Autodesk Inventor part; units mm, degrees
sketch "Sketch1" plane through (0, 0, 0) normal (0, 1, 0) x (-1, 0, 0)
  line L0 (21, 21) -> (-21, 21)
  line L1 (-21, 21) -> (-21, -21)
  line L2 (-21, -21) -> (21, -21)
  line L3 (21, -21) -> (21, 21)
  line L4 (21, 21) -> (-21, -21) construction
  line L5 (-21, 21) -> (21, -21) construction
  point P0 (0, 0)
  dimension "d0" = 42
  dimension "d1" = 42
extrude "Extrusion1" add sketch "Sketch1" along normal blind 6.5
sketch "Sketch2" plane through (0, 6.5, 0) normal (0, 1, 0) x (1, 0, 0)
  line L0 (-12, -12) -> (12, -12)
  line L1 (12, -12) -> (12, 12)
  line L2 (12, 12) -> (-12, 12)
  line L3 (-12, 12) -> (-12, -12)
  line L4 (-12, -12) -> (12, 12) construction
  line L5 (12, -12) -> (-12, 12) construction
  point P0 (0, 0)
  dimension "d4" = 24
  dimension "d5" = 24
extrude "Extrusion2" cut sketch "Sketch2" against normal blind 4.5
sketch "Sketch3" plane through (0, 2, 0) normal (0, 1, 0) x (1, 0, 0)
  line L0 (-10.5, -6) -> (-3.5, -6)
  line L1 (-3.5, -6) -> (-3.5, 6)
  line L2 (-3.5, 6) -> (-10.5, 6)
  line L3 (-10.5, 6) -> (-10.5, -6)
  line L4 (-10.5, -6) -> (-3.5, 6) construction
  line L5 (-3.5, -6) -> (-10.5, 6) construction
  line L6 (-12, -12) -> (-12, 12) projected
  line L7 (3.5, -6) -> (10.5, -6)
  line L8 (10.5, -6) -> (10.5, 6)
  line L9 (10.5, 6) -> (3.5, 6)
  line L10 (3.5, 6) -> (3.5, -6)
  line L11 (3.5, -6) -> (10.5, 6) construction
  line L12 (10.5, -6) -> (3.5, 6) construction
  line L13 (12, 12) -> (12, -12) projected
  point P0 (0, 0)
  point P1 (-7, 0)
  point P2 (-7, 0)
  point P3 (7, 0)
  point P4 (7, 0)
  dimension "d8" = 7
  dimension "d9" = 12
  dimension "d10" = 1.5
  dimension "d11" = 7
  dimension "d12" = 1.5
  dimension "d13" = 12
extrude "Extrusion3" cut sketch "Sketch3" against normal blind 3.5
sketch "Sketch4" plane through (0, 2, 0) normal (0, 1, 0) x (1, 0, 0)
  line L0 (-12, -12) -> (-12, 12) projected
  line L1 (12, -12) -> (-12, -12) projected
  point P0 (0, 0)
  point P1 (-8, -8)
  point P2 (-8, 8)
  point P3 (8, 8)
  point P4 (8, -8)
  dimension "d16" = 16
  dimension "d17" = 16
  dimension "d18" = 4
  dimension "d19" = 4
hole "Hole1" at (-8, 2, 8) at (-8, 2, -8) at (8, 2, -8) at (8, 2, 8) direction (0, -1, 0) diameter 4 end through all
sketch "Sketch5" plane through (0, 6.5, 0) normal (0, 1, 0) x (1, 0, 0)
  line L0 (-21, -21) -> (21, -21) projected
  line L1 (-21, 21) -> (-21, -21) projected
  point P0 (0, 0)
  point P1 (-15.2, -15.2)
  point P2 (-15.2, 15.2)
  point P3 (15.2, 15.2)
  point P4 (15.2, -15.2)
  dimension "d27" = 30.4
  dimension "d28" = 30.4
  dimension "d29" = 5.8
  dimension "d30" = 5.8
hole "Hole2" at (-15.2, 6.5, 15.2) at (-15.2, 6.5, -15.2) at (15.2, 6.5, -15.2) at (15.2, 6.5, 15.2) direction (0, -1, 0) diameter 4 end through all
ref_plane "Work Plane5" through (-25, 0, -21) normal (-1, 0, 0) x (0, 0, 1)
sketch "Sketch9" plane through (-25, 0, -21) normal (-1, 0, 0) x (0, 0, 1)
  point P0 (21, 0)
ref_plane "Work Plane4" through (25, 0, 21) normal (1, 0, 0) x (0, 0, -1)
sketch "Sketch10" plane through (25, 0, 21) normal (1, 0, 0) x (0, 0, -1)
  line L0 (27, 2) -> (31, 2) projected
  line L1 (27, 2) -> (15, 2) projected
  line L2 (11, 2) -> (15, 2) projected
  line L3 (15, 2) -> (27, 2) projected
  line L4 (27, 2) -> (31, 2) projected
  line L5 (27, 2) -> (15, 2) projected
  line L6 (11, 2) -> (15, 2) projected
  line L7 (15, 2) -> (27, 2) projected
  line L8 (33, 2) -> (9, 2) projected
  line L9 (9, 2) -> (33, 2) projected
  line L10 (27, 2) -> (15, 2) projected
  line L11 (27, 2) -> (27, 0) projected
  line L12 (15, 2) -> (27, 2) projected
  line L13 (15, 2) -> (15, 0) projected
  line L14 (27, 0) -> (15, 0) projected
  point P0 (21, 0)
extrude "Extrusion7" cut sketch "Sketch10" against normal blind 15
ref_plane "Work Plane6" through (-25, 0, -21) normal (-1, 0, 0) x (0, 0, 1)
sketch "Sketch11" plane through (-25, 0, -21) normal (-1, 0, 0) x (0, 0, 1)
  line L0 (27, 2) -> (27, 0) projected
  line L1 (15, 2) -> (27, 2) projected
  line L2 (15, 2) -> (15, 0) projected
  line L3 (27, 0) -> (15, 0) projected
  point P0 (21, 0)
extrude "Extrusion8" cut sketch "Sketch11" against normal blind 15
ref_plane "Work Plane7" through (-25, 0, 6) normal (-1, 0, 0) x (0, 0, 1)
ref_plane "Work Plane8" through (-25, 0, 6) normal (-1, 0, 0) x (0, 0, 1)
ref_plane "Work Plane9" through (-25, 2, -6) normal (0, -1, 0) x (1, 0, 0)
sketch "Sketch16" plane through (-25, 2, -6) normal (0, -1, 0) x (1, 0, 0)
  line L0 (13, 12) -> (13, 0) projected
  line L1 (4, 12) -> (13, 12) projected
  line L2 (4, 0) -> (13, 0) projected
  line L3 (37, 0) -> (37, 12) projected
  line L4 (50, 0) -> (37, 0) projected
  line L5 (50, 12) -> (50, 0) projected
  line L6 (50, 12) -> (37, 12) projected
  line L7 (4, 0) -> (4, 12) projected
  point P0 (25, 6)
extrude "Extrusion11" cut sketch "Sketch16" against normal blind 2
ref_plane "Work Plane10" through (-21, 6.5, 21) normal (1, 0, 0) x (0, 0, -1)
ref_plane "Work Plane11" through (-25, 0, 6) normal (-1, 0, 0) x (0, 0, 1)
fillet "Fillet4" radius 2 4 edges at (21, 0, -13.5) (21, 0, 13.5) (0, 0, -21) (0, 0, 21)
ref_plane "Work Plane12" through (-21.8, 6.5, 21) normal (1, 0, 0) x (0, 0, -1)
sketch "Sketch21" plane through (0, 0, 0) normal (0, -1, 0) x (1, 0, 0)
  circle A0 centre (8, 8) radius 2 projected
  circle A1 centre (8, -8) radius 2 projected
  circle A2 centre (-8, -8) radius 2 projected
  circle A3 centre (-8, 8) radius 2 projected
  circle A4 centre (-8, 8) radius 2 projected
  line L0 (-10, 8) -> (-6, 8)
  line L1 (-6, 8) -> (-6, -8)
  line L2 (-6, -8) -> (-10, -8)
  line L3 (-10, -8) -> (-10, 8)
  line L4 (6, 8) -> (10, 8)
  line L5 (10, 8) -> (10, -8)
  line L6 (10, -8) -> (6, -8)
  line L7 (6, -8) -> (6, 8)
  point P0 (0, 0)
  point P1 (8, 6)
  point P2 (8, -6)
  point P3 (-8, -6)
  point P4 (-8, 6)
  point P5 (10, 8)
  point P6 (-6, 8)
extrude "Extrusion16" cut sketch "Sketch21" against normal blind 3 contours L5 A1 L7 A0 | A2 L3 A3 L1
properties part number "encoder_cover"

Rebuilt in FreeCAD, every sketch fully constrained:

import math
import FreeCAD as App
import Part
import Sketcher
from FreeCAD import Vector
Q = App.Units.Quantity


def edges_at(feature, points):
    """Names of the edges that pass closest to the given points."""
    edges = feature.Shape.Edges
    near = lambda p: min(range(len(edges)), key=lambda i: edges[i].distToShape(Part.Vertex(*p))[0])
    return sorted({f"Edge{near(p) + 1}" for p in points})

doc = App.newDocument("Part")
params = doc.addObject("Spreadsheet::Sheet", "Params")
for row, (alias, value) in enumerate([
    ("sketch1_width", "42 mm"),
    ("pad1_length", "6.5 mm"),
    ("sketch2_width", "24 mm"),
    ("pocket1_length", "4.5 mm"),
    ("sketch3_width", "7 mm"),
    ("sketch3_height", "12 mm"),
    ("pocket2_length", "3.5 mm"),
    ("sketch4_diameter", "4 mm"),
    ("hole_diameter", "4 mm"),
    ("sketch5_diameter", "4 mm"),
    ("hole2_diameter", "4 mm"),
    ("sketch6_width", "2 mm"),
    ("sketch6_height", "12 mm"),
    ("pocket3_length", "15 mm"),
    ("sketch7_width", "2 mm"),
    ("sketch7_height", "12 mm"),
    ("pocket4_length", "15 mm"),
    ("sketch8_width", "9 mm"),
    ("sketch8_width2", "13 mm"),
    ("sketch8_height", "12 mm"),
    ("pocket5_length", "2 mm"),
    ("fillet_radius", "2 mm"),
    ("sketch9_radius", "2 mm"),
    ("sketch9_height", "16 mm"),
    ("pocket6_length", "3 mm"),
], start=1):
    params.set(f"A{row}", alias)
    params.set(f"B{row}", "=" + value)
    params.setAlias(f"B{row}", alias)

body = doc.addObject("PartDesign::Body", "Body")

sketch1 = doc.addObject("Sketcher::SketchObject", "Sketch")
body.addObject(sketch1)
sketch1.AttachmentSupport = (doc.XZ_Plane, [""])
sketch1.MapMode = "FlatFace"
sketch1.addGeometry(Part.LineSegment(Vector(-21, -21, 0), Vector(-21, 21, 0)), False)
sketch1.addGeometry(Part.LineSegment(Vector(-21, 21, 0), Vector(21, 21, 0)), False)
sketch1.addGeometry(Part.LineSegment(Vector(21, 21, 0), Vector(21, -21, 0)), False)
sketch1.addGeometry(Part.LineSegment(Vector(21, -21, 0), Vector(-21, -21, 0)), False)
sketch1.addConstraint(Sketcher.Constraint("Coincident", 0, 2, 1, 1))
sketch1.addConstraint(Sketcher.Constraint("Coincident", 1, 2, 2, 1))
sketch1.addConstraint(Sketcher.Constraint("Coincident", 2, 2, 3, 1))
sketch1.addConstraint(Sketcher.Constraint("Coincident", 3, 2, 0, 1))
sketch1.addConstraint(Sketcher.Constraint("Vertical", 0))
sketch1.addConstraint(Sketcher.Constraint("Horizontal", 1))
sketch1.addConstraint(Sketcher.Constraint("Vertical", 2))
sketch1.addConstraint(Sketcher.Constraint("Horizontal", 3))
sketch1.addConstraint(Sketcher.Constraint("Symmetric", 0, 2, 2, 2, -1, 1))
sketch1.addConstraint(Sketcher.Constraint("Equal", 3, 0))
sketch1.addConstraint(Sketcher.Constraint("DistanceX", 1, 1, 1, 2, Q("42 mm")))
sketch1.setExpression("Constraints[10]", "Params.sketch1_width")
pad1 = doc.addObject("PartDesign::Pad", "Pad")
body.addObject(pad1)
pad1.Profile = sketch1
pad1.setExpression("Length", "Params.pad1_length")
pad1.Reversed = True

sketch2 = doc.addObject("Sketcher::SketchObject", "Sketch001")
body.addObject(sketch2)
sketch2.AttachmentSupport = (doc.XZ_Plane, [""])
sketch2.MapMode = "FlatFace"
sketch2.AttachmentOffset = App.Placement(Vector(0, 0, -6.5), App.Rotation())
sketch2.addGeometry(Part.LineSegment(Vector(-12, -12, 0), Vector(-12, 12, 0)), False)
sketch2.addGeometry(Part.LineSegment(Vector(-12, 12, 0), Vector(12, 12, 0)), False)
sketch2.addGeometry(Part.LineSegment(Vector(12, 12, 0), Vector(12, -12, 0)), False)
sketch2.addGeometry(Part.LineSegment(Vector(12, -12, 0), Vector(-12, -12, 0)), False)
sketch2.addConstraint(Sketcher.Constraint("Coincident", 0, 2, 1, 1))
sketch2.addConstraint(Sketcher.Constraint("Coincident", 1, 2, 2, 1))
sketch2.addConstraint(Sketcher.Constraint("Coincident", 2, 2, 3, 1))
sketch2.addConstraint(Sketcher.Constraint("Coincident", 3, 2, 0, 1))
sketch2.addConstraint(Sketcher.Constraint("Vertical", 0))
sketch2.addConstraint(Sketcher.Constraint("Horizontal", 1))
sketch2.addConstraint(Sketcher.Constraint("Vertical", 2))
sketch2.addConstraint(Sketcher.Constraint("Horizontal", 3))
sketch2.addConstraint(Sketcher.Constraint("Symmetric", 0, 2, 2, 2, -1, 1))
sketch2.addConstraint(Sketcher.Constraint("Equal", 3, 0))
sketch2.addConstraint(Sketcher.Constraint("DistanceX", 1, 1, 1, 2, Q("24 mm")))
sketch2.setExpression("Constraints[10]", "Params.sketch2_width")
pocket1 = doc.addObject("PartDesign::Pocket", "Pocket")
body.addObject(pocket1)
pocket1.Profile = sketch2
pocket1.setExpression("Length", "Params.pocket1_length")
pocket1.Reversed = True

sketch3 = doc.addObject("Sketcher::SketchObject", "Sketch002")
body.addObject(sketch3)
sketch3.AttachmentSupport = (doc.XZ_Plane, [""])
sketch3.MapMode = "FlatFace"
sketch3.AttachmentOffset = App.Placement(Vector(0, 0, -2), App.Rotation())
sketch3.addGeometry(Part.LineSegment(Vector(-10, -6, 0), Vector(-10, 6, 0)), False)
sketch3.addGeometry(Part.LineSegment(Vector(-10, 6, 0), Vector(-4, 6, 0)), False)
sketch3.addGeometry(Part.LineSegment(Vector(-4, 6, 0), Vector(-4, -6, 0)), False)
sketch3.addGeometry(Part.LineSegment(Vector(-4, -6, 0), Vector(-10, -6, 0)), False)
sketch3.addGeometry(Part.LineSegment(Vector(4, -6, 0), Vector(4, 6, 0)), False)
sketch3.addGeometry(Part.LineSegment(Vector(4, 6, 0), Vector(10, 6, 0)), False)
sketch3.addGeometry(Part.LineSegment(Vector(10, 6, 0), Vector(10, -6, 0)), False)
sketch3.addGeometry(Part.LineSegment(Vector(10, -6, 0), Vector(4, -6, 0)), False)
sketch3.addConstraint(Sketcher.Constraint("Coincident", 0, 2, 1, 1))
sketch3.addConstraint(Sketcher.Constraint("Coincident", 1, 2, 2, 1))
sketch3.addConstraint(Sketcher.Constraint("Coincident", 2, 2, 3, 1))
sketch3.addConstraint(Sketcher.Constraint("Coincident", 3, 2, 0, 1))
sketch3.addConstraint(Sketcher.Constraint("Coincident", 4, 2, 5, 1))
sketch3.addConstraint(Sketcher.Constraint("Coincident", 5, 2, 6, 1))
sketch3.addConstraint(Sketcher.Constraint("Coincident", 6, 2, 7, 1))
sketch3.addConstraint(Sketcher.Constraint("Coincident", 7, 2, 4, 1))
sketch3.addConstraint(Sketcher.Constraint("Vertical", 0))
sketch3.addConstraint(Sketcher.Constraint("Horizontal", 1))
sketch3.addConstraint(Sketcher.Constraint("Vertical", 2))
sketch3.addConstraint(Sketcher.Constraint("Horizontal", 3))
sketch3.addConstraint(Sketcher.Constraint("Vertical", 4))
sketch3.addConstraint(Sketcher.Constraint("Horizontal", 5))
sketch3.addConstraint(Sketcher.Constraint("Vertical", 6))
sketch3.addConstraint(Sketcher.Constraint("Horizontal", 7))
sketch3.addConstraint(Sketcher.Constraint("Symmetric", 2, 2, 4, 2, -1, 1))
sketch3.addConstraint(Sketcher.Constraint("Symmetric", 0, 2, 6, 2, -1, 1))
sketch3.addConstraint(Sketcher.Constraint("Horizontal", 1, 2, 4, 2))
sketch3.addConstraint(Sketcher.Constraint("DistanceX", 1, 1, 1, 2, Q("7 mm")))
sketch3.addConstraint(Sketcher.Constraint("DistanceY", 0, 1, 0, 2, Q("12 mm")))
sketch3.addConstraint(Sketcher.Constraint("DistanceX", 1, 2, 4, 2, Q("7 mm")))
sketch3.setExpression("Constraints[19]", "Params.sketch3_width")
sketch3.setExpression("Constraints[20]", "Params.sketch3_height")
pocket2 = doc.addObject("PartDesign::Pocket", "Pocket001")
body.addObject(pocket2)
pocket2.Profile = sketch3
pocket2.setExpression("Length", "Params.pocket2_length")
pocket2.Reversed = True

sketch4 = doc.addObject("Sketcher::SketchObject", "Sketch003")
body.addObject(sketch4)
sketch4.AttachmentSupport = (doc.XZ_Plane, [""])
sketch4.MapMode = "FlatFace"
sketch4.AttachmentOffset = App.Placement(Vector(0, 0, -2), App.Rotation())
sketch4.addGeometry(Part.Circle(Vector(-8, 8, 0), Vector(0, 0, 1), 2), False)
sketch4.addGeometry(Part.Circle(Vector(-8, -8, 0), Vector(0, 0, 1), 2), False)
sketch4.addGeometry(Part.Circle(Vector(8, -8, 0), Vector(0, 0, 1), 2), False)
sketch4.addGeometry(Part.Circle(Vector(8, 8, 0), Vector(0, 0, 1), 2), False)
sketch4.addConstraint(Sketcher.Constraint("Equal", 0, 1))
sketch4.addConstraint(Sketcher.Constraint("Equal", 1, 2))
sketch4.addConstraint(Sketcher.Constraint("Equal", 2, 3))
sketch4.addConstraint(Sketcher.Constraint("Symmetric", 0, 3, 2, 3, -1, 1))
sketch4.addConstraint(Sketcher.Constraint("Symmetric", 1, 3, 3, 3, -1, 1))
sketch4.addConstraint(Sketcher.Constraint("Symmetric", 1, 3, 2, 3, -2))
sketch4.addConstraint(Sketcher.Constraint("Diameter", 0, Q("4 mm")))
sketch4.addConstraint(Sketcher.Constraint("DistanceX", 0, 3, -1, 1, Q("8 mm")))
sketch4.addConstraint(Sketcher.Constraint("DistanceY", -1, 1, 0, 3, Q("8 mm")))
sketch4.setExpression("Constraints[6]", "Params.sketch4_diameter")
doc.recompute()
hole = doc.addObject("PartDesign::Hole", "Hole")
body.addObject(hole)
hole.Profile = sketch4
hole.ThreadType = "None"
hole.setExpression("Diameter", "Params.hole_diameter")
hole.DepthType = "ThroughAll"
hole.Reversed = True

sketch5 = doc.addObject("Sketcher::SketchObject", "Sketch004")
body.addObject(sketch5)
sketch5.AttachmentSupport = (doc.XZ_Plane, [""])
sketch5.MapMode = "FlatFace"
sketch5.AttachmentOffset = App.Placement(Vector(0, 0, -6.5), App.Rotation())
sketch5.addGeometry(Part.Circle(Vector(-15.2, 15.2, 0), Vector(0, 0, 1), 2), False)
sketch5.addGeometry(Part.Circle(Vector(-15.2, -15.2, 0), Vector(0, 0, 1), 2), False)
sketch5.addGeometry(Part.Circle(Vector(15.2, -15.2, 0), Vector(0, 0, 1), 2), False)
sketch5.addGeometry(Part.Circle(Vector(15.2, 15.2, 0), Vector(0, 0, 1), 2), False)
sketch5.addConstraint(Sketcher.Constraint("Equal", 0, 1))
sketch5.addConstraint(Sketcher.Constraint("Equal", 1, 2))
sketch5.addConstraint(Sketcher.Constraint("Equal", 2, 3))
sketch5.addConstraint(Sketcher.Constraint("Symmetric", 0, 3, 2, 3, -1, 1))
sketch5.addConstraint(Sketcher.Constraint("Symmetric", 1, 3, 3, 3, -1, 1))
sketch5.addConstraint(Sketcher.Constraint("Symmetric", 1, 3, 2, 3, -2))
sketch5.addConstraint(Sketcher.Constraint("Diameter", 0, Q("4 mm")))
sketch5.addConstraint(Sketcher.Constraint("DistanceX", 0, 3, -1, 1, Q("15.2 mm")))
sketch5.addConstraint(Sketcher.Constraint("DistanceY", -1, 1, 0, 3, Q("15.2 mm")))
sketch5.setExpression("Constraints[6]", "Params.sketch5_diameter")
doc.recompute()
hole2 = doc.addObject("PartDesign::Hole", "Hole001")
body.addObject(hole2)
hole2.Profile = sketch5
hole2.ThreadType = "None"
hole2.setExpression("Diameter", "Params.hole2_diameter")
hole2.DepthType = "ThroughAll"
hole2.Reversed = True

sketch6 = doc.addObject("Sketcher::SketchObject", "Sketch005")
body.addObject(sketch6)
sketch6.AttachmentSupport = (doc.YZ_Plane, [""])
sketch6.MapMode = "FlatFace"
sketch6.AttachmentOffset = App.Placement(Vector(0, 0, 25), App.Rotation())
sketch6.addGeometry(Part.LineSegment(Vector(0, -6, 0), Vector(2, -6, 0)), False)
sketch6.addGeometry(Part.LineSegment(Vector(2, -6, 0), Vector(2, 6, 0)), False)
sketch6.addGeometry(Part.LineSegment(Vector(2, 6, 0), Vector(0, 6, 0)), False)
sketch6.addGeometry(Part.LineSegment(Vector(0, 6, 0), Vector(0, -6, 0)), False)
sketch6.addConstraint(Sketcher.Constraint("Coincident", 0, 2, 1, 1))
sketch6.addConstraint(Sketcher.Constraint("Coincident", 1, 2, 2, 1))
sketch6.addConstraint(Sketcher.Constraint("Coincident", 2, 2, 3, 1))
sketch6.addConstraint(Sketcher.Constraint("Coincident", 3, 2, 0, 1))
sketch6.addConstraint(Sketcher.Constraint("Horizontal", 0))
sketch6.addConstraint(Sketcher.Constraint("Vertical", 1))
sketch6.addConstraint(Sketcher.Constraint("Horizontal", 2))
sketch6.addConstraint(Sketcher.Constraint("Vertical", 3))
sketch6.addConstraint(Sketcher.Constraint("Symmetric", 2, 2, 3, 2, -1, 1))
sketch6.addConstraint(Sketcher.Constraint("DistanceX", 0, 1, 0, 2, Q("2 mm")))
sketch6.addConstraint(Sketcher.Constraint("DistanceY", 1, 1, 1, 2, Q("12 mm")))
sketch6.setExpression("Constraints[9]", "Params.sketch6_width")
sketch6.setExpression("Constraints[10]", "Params.sketch6_height")
pocket3 = doc.addObject("PartDesign::Pocket", "Pocket002")
body.addObject(pocket3)
pocket3.Profile = sketch6
pocket3.setExpression("Length", "Params.pocket3_length")

sketch7 = doc.addObject("Sketcher::SketchObject", "Sketch006")
body.addObject(sketch7)
sketch7.AttachmentSupport = (doc.YZ_Plane, [""])
sketch7.MapMode = "FlatFace"
sketch7.AttachmentOffset = App.Placement(Vector(0, 0, -25), App.Rotation())
sketch7.addGeometry(Part.LineSegment(Vector(0, 6, 0), Vector(2, 6, 0)), False)
sketch7.addGeometry(Part.LineSegment(Vector(2, 6, 0), Vector(2, -6, 0)), False)
sketch7.addGeometry(Part.LineSegment(Vector(2, -6, 0), Vector(0, -6, 0)), False)
sketch7.addGeometry(Part.LineSegment(Vector(0, -6, 0), Vector(0, 6, 0)), False)
sketch7.addConstraint(Sketcher.Constraint("Coincident", 0, 2, 1, 1))
sketch7.addConstraint(Sketcher.Constraint("Coincident", 1, 2, 2, 1))
sketch7.addConstraint(Sketcher.Constraint("Coincident", 2, 2, 3, 1))
sketch7.addConstraint(Sketcher.Constraint("Coincident", 3, 2, 0, 1))
sketch7.addConstraint(Sketcher.Constraint("Horizontal", 0))
sketch7.addConstraint(Sketcher.Constraint("Vertical", 1))
sketch7.addConstraint(Sketcher.Constraint("Horizontal", 2))
sketch7.addConstraint(Sketcher.Constraint("Vertical", 3))
sketch7.addConstraint(Sketcher.Constraint("Symmetric", 2, 2, 3, 2, -1, 1))
sketch7.addConstraint(Sketcher.Constraint("DistanceX", 0, 1, 0, 2, Q("2 mm")))
sketch7.addConstraint(Sketcher.Constraint("DistanceY", 1, 2, 1, 1, Q("12 mm")))
sketch7.setExpression("Constraints[9]", "Params.sketch7_width")
sketch7.setExpression("Constraints[10]", "Params.sketch7_height")
pocket4 = doc.addObject("PartDesign::Pocket", "Pocket003")
body.addObject(pocket4)
pocket4.Profile = sketch7
pocket4.setExpression("Length", "Params.pocket4_length")
pocket4.Reversed = True

sketch8 = doc.addObject("Sketcher::SketchObject", "Sketch007")
body.addObject(sketch8)
sketch8.AttachmentSupport = (doc.XZ_Plane, [""])
sketch8.MapMode = "FlatFace"
sketch8.AttachmentOffset = App.Placement(Vector(0, 0, -2), App.Rotation())
sketch8.addGeometry(Part.LineSegment(Vector(-12, -6, 0), Vector(-12, 6, 0)), False)
sketch8.addGeometry(Part.LineSegment(Vector(-12, 6, 0), Vector(-21, 6, 0)), False)
sketch8.addGeometry(Part.LineSegment(Vector(-21, 6, 0), Vector(-21, -6, 0)), False)
sketch8.addGeometry(Part.LineSegment(Vector(-21, -6, 0), Vector(-12, -6, 0)), False)
sketch8.addGeometry(Part.LineSegment(Vector(12, 6, 0), Vector(12, -6, 0)), False)
sketch8.addGeometry(Part.LineSegment(Vector(12, -6, 0), Vector(25, -6, 0)), False)
sketch8.addGeometry(Part.LineSegment(Vector(25, -6, 0), Vector(25, 6, 0)), False)
sketch8.addGeometry(Part.LineSegment(Vector(25, 6, 0), Vector(12, 6, 0)), False)
sketch8.addConstraint(Sketcher.Constraint("Coincident", 0, 2, 1, 1))
sketch8.addConstraint(Sketcher.Constraint("Coincident", 1, 2, 2, 1))
sketch8.addConstraint(Sketcher.Constraint("Coincident", 2, 2, 3, 1))
sketch8.addConstraint(Sketcher.Constraint("Coincident", 3, 2, 0, 1))
sketch8.addConstraint(Sketcher.Constraint("Coincident", 4, 2, 5, 1))
sketch8.addConstraint(Sketcher.Constraint("Coincident", 5, 2, 6, 1))
sketch8.addConstraint(Sketcher.Constraint("Coincident", 6, 2, 7, 1))
sketch8.addConstraint(Sketcher.Constraint("Coincident", 7, 2, 4, 1))
sketch8.addConstraint(Sketcher.Constraint("Vertical", 0))
sketch8.addConstraint(Sketcher.Constraint("Horizontal", 1))
sketch8.addConstraint(Sketcher.Constraint("Vertical", 2))
sketch8.addConstraint(Sketcher.Constraint("Horizontal", 3))
sketch8.addConstraint(Sketcher.Constraint("Vertical", 4))
sketch8.addConstraint(Sketcher.Constraint("Horizontal", 5))
sketch8.addConstraint(Sketcher.Constraint("Vertical", 6))
sketch8.addConstraint(Sketcher.Constraint("Horizontal", 7))
sketch8.addConstraint(Sketcher.Constraint("Symmetric", 0, 2, 4, 2, -1, 1))
sketch8.addConstraint(Sketcher.Constraint("Horizontal", 3, 2, 4, 2))
sketch8.addConstraint(Sketcher.Constraint("Horizontal", 1, 2, 6, 2))
sketch8.addConstraint(Sketcher.Constraint("DistanceX", 1, 2, 1, 1, Q("9 mm")))
sketch8.addConstraint(Sketcher.Constraint("DistanceX", 5, 1, 5, 2, Q("13 mm")))
sketch8.addConstraint(Sketcher.Constraint("DistanceY", 0, 1, 0, 2, Q("12 mm")))
sketch8.addConstraint(Sketcher.Constraint("DistanceX", 0, 2, -1, 1, Q("12 mm")))
sketch8.setExpression("Constraints[19]", "Params.sketch8_width")
sketch8.setExpression("Constraints[20]", "Params.sketch8_width2")
sketch8.setExpression("Constraints[21]", "Params.sketch8_height")
pocket5 = doc.addObject("PartDesign::Pocket", "Pocket004")
body.addObject(pocket5)
pocket5.Profile = sketch8
pocket5.setExpression("Length", "Params.pocket5_length")
doc.recompute()

fillet = doc.addObject("PartDesign::Fillet", "Fillet")
body.addObject(fillet)
fillet.Base = (pocket5, edges_at(pocket5, [
    (21, 0, -13.5),
    (21, 0, 13.5),
    (0, 0, -21),
    (0, 0, 21),
]))
fillet.setExpression("Radius", "Params.fillet_radius")

sketch9 = doc.addObject("Sketcher::SketchObject", "Sketch008")
body.addObject(sketch9)
sketch9.AttachmentSupport = (doc.XZ_Plane, [""])
sketch9.MapMode = "FlatFace"
sketch9.addGeometry(Part.LineSegment(Vector(10, -8, 0), Vector(10, 8, 0)), False)
sketch9.addGeometry(Part.ArcOfCircle(Part.Circle(Vector(8, 8, 0), Vector(0, 0, 1), 2), math.radians(180), math.radians(360)), False)
sketch9.addGeometry(Part.LineSegment(Vector(6, 8, 0), Vector(6, -8, 0)), False)
sketch9.addGeometry(Part.ArcOfCircle(Part.Circle(Vector(8, -8, 0), Vector(0, 0, 1), 2), math.radians(0), math.radians(180)), False)
sketch9.addGeometry(Part.ArcOfCircle(Part.Circle(Vector(-8, -8, 0), Vector(0, 0, 1), 2), math.radians(0), math.radians(180)), False)
sketch9.addGeometry(Part.LineSegment(Vector(-6, -8, 0), Vector(-6, 8, 0)), False)
sketch9.addGeometry(Part.ArcOfCircle(Part.Circle(Vector(-8, 8, 0), Vector(0, 0, 1), 2), math.radians(180), math.radians(360)), False)
sketch9.addGeometry(Part.LineSegment(Vector(-10, 8, 0), Vector(-10, -8, 0)), False)
sketch9.addConstraint(Sketcher.Constraint("Tangent", 0, 2, 1, 2))
sketch9.addConstraint(Sketcher.Constraint("Tangent", 1, 1, 2, 1))
sketch9.addConstraint(Sketcher.Constraint("Tangent", 2, 2, 3, 2))
sketch9.addConstraint(Sketcher.Constraint("Tangent", 3, 1, 0, 1))
sketch9.addConstraint(Sketcher.Constraint("Tangent", 4, 1, 5, 1))
sketch9.addConstraint(Sketcher.Constraint("Tangent", 5, 2, 6, 2))
sketch9.addConstraint(Sketcher.Constraint("Tangent", 6, 1, 7, 1))
sketch9.addConstraint(Sketcher.Constraint("Tangent", 7, 2, 4, 2))
sketch9.addConstraint(Sketcher.Constraint("Vertical", 0))
sketch9.addConstraint(Sketcher.Constraint("Vertical", 2))
sketch9.addConstraint(Sketcher.Constraint("Vertical", 5))
sketch9.addConstraint(Sketcher.Constraint("Vertical", 7))
sketch9.addConstraint(Sketcher.Constraint("Equal", 3, 4))
sketch9.addConstraint(Sketcher.Constraint("Symmetric", 1, 3, 4, 3, -1, 1))
sketch9.addConstraint(Sketcher.Constraint("Horizontal", 3, 3, 4, 3))
sketch9.addConstraint(Sketcher.Constraint("Horizontal", 1, 3, 6, 3))
sketch9.addConstraint(Sketcher.Constraint("Radius", 1, Q("2 mm")))
sketch9.addConstraint(Sketcher.Constraint("DistanceY", 0, 1, 0, 2, Q("16 mm")))
sketch9.addConstraint(Sketcher.Constraint("DistanceX", -1, 1, 1, 3, Q("8 mm")))
sketch9.setExpression("Constraints[16]", "Params.sketch9_radius")
sketch9.setExpression("Constraints[17]", "Params.sketch9_height")
pocket6 = doc.addObject("PartDesign::Pocket", "Pocket005")
body.addObject(pocket6)
pocket6.Profile = sketch9
pocket6.setExpression("Length", "Params.pocket6_length")

doc.recompute()
